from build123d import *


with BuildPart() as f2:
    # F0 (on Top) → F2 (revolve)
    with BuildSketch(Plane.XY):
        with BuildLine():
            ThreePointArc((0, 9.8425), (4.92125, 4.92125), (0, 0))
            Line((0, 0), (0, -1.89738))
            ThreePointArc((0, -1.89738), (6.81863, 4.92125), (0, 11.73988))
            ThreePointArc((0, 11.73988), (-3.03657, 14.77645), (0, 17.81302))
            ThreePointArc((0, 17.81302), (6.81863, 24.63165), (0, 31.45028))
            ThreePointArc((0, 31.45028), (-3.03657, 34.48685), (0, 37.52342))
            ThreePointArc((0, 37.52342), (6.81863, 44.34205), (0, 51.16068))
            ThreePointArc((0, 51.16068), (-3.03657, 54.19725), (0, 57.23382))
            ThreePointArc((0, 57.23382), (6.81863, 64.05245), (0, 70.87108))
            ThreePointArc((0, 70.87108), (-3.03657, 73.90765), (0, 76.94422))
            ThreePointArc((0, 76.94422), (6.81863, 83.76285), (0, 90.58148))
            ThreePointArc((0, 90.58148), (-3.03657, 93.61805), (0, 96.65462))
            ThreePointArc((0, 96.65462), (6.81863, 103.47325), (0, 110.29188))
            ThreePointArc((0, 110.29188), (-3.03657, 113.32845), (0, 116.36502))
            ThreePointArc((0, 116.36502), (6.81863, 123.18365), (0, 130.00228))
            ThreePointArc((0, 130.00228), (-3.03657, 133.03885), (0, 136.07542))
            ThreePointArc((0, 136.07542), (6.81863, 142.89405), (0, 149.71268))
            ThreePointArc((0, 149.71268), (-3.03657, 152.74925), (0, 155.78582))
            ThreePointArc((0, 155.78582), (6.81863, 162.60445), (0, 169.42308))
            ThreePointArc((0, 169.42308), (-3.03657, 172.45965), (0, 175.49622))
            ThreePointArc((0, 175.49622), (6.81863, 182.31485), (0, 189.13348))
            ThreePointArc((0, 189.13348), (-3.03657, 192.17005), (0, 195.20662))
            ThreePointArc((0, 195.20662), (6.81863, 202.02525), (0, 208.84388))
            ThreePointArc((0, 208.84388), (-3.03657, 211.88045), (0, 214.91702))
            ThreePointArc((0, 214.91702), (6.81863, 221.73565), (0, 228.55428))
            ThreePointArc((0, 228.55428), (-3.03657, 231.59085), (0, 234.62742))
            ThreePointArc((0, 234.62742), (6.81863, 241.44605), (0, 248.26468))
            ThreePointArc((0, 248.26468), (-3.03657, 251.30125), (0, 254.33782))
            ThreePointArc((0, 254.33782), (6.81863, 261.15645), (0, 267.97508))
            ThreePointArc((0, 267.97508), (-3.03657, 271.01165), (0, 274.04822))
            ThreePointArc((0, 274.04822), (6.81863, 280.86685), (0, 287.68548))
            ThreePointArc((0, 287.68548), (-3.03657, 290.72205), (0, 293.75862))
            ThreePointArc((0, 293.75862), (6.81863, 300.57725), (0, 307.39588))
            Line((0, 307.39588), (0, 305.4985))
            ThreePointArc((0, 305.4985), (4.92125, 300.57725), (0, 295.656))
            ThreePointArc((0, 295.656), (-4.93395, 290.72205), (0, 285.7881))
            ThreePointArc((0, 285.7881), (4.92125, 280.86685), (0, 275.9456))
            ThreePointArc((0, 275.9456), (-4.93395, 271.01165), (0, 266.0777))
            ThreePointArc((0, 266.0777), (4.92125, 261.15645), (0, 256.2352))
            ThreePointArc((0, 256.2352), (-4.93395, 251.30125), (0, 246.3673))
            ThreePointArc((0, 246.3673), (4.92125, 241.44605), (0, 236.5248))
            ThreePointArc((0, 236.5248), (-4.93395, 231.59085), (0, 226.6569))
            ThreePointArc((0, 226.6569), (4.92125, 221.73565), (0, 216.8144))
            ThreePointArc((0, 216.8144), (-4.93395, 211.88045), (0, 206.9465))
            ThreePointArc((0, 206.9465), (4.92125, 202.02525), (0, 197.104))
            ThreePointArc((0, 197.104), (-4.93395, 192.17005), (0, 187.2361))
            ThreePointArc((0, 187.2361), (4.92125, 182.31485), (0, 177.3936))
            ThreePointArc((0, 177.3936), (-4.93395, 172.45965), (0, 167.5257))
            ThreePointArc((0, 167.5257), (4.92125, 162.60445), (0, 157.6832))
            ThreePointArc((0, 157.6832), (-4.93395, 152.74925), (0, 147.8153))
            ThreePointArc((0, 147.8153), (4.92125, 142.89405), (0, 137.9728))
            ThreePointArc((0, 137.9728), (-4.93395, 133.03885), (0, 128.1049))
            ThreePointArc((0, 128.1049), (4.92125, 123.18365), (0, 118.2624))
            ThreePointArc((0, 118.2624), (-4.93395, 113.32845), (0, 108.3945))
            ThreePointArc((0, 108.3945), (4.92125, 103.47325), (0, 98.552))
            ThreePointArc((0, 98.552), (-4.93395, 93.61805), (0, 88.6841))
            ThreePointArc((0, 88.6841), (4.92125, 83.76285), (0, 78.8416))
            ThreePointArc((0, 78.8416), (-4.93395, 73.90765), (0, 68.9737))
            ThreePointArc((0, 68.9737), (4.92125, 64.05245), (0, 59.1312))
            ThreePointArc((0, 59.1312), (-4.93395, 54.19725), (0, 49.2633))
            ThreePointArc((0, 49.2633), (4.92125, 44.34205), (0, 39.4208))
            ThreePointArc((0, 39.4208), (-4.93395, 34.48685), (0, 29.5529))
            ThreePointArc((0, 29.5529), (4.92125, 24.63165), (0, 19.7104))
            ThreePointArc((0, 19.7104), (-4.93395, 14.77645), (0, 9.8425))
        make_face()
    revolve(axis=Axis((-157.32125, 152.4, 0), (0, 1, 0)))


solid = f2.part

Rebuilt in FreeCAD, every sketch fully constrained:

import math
import FreeCAD as App
import Part
import Sketcher
from FreeCAD import Vector

doc = App.newDocument("Part")
body = doc.addObject("PartDesign::Body", "Body")

# Sketch on XY plane
sketch1 = body.newObject("Sketcher::SketchObject", "Sketch")
sketch1.AttachmentSupport = (doc.getObject("XY_Plane"), [""])
sketch1.MapMode = "FlatFace"
sketch1.addGeometry([
    Part.ArcOfCircle(Part.Circle(Vector(0, 4.92125, 0), Vector(0, 0, 1), 4.92125), math.radians(-90), math.radians(90)),  # 0
    Part.LineSegment(Vector(0, 0, 0), Vector(0, -1.89738, 0)),  # 1
    Part.ArcOfCircle(Part.Circle(Vector(0, 4.92125, 0), Vector(0, 0, 1), 6.81863), math.radians(-90), math.radians(90)),  # 2
    Part.ArcOfCircle(Part.Circle(Vector(0, 14.77645, 0), Vector(0, 0, 1), 3.03657), math.radians(90), math.radians(270)),  # 3
    Part.ArcOfCircle(Part.Circle(Vector(0, 24.63165, 0), Vector(0, 0, 1), 6.81863), math.radians(-90), math.radians(90)),  # 4
    Part.ArcOfCircle(Part.Circle(Vector(0, 34.48685, 0), Vector(0, 0, 1), 3.03657), math.radians(90), math.radians(270)),  # 5
    Part.ArcOfCircle(Part.Circle(Vector(0, 44.34205, 0), Vector(0, 0, 1), 6.81863), math.radians(-90), math.radians(90)),  # 6
    Part.ArcOfCircle(Part.Circle(Vector(0, 54.19725, 0), Vector(0, 0, 1), 3.03657), math.radians(90), math.radians(270)),  # 7
    Part.ArcOfCircle(Part.Circle(Vector(0, 64.05245, 0), Vector(0, 0, 1), 6.81863), math.radians(-90), math.radians(90)),  # 8
    Part.ArcOfCircle(Part.Circle(Vector(0, 73.90765, 0), Vector(0, 0, 1), 3.03657), math.radians(90), math.radians(270)),  # 9
    Part.ArcOfCircle(Part.Circle(Vector(0, 83.76285, 0), Vector(0, 0, 1), 6.81863), math.radians(-90), math.radians(90)),  # 10
    Part.ArcOfCircle(Part.Circle(Vector(0, 93.61805, 0), Vector(0, 0, 1), 3.03657), math.radians(90), math.radians(270)),  # 11
    Part.ArcOfCircle(Part.Circle(Vector(0, 103.47325, 0), Vector(0, 0, 1), 6.81863), math.radians(-90), math.radians(90)),  # 12
    Part.ArcOfCircle(Part.Circle(Vector(0, 113.32845, 0), Vector(0, 0, 1), 3.03657), math.radians(90), math.radians(270)),  # 13
    Part.ArcOfCircle(Part.Circle(Vector(0, 123.18365, 0), Vector(0, 0, 1), 6.81863), math.radians(-90), math.radians(90)),  # 14
    Part.ArcOfCircle(Part.Circle(Vector(0, 133.03885, 0), Vector(0, 0, 1), 3.03657), math.radians(90), math.radians(270)),  # 15
    Part.ArcOfCircle(Part.Circle(Vector(0, 142.89405, 0), Vector(0, 0, 1), 6.81863), math.radians(-90), math.radians(90)),  # 16
    Part.ArcOfCircle(Part.Circle(Vector(0, 152.74925, 0), Vector(0, 0, 1), 3.03657), math.radians(90), math.radians(270)),  # 17
    Part.ArcOfCircle(Part.Circle(Vector(0, 162.60445, 0), Vector(0, 0, 1), 6.81863), math.radians(-90), math.radians(90)),  # 18
    Part.ArcOfCircle(Part.Circle(Vector(0, 172.45965, 0), Vector(0, 0, 1), 3.03657), math.radians(90), math.radians(270)),  # 19
    Part.ArcOfCircle(Part.Circle(Vector(0, 182.31485, 0), Vector(0, 0, 1), 6.81863), math.radians(-90), math.radians(90)),  # 20
    Part.ArcOfCircle(Part.Circle(Vector(0, 192.17005, 0), Vector(0, 0, 1), 3.03657), math.radians(90), math.radians(270)),  # 21
    Part.ArcOfCircle(Part.Circle(Vector(0, 202.02525, 0), Vector(0, 0, 1), 6.81863), math.radians(-90), math.radians(90)),  # 22
    Part.ArcOfCircle(Part.Circle(Vector(0, 211.88045, 0), Vector(0, 0, 1), 3.03657), math.radians(90), math.radians(270)),  # 23
    Part.ArcOfCircle(Part.Circle(Vector(0, 221.73565, 0), Vector(0, 0, 1), 6.81863), math.radians(-90), math.radians(90)),  # 24
    Part.ArcOfCircle(Part.Circle(Vector(0, 231.59085, 0), Vector(0, 0, 1), 3.03657), math.radians(90), math.radians(270)),  # 25
    Part.ArcOfCircle(Part.Circle(Vector(0, 241.44605, 0), Vector(0, 0, 1), 6.81863), math.radians(-90), math.radians(90)),  # 26
    Part.ArcOfCircle(Part.Circle(Vector(0, 251.30125, 0), Vector(0, 0, 1), 3.03657), math.radians(90), math.radians(270)),  # 27
    Part.ArcOfCircle(Part.Circle(Vector(0, 261.15645, 0), Vector(0, 0, 1), 6.81863), math.radians(-90), math.radians(90)),  # 28
    Part.ArcOfCircle(Part.Circle(Vector(0, 271.01165, 0), Vector(0, 0, 1), 3.03657), math.radians(90), math.radians(270)),  # 29
    Part.ArcOfCircle(Part.Circle(Vector(0, 280.86685, 0), Vector(0, 0, 1), 6.81863), math.radians(-90), math.radians(90)),  # 30
    Part.ArcOfCircle(Part.Circle(Vector(0, 290.72205, 0), Vector(0, 0, 1), 3.03657), math.radians(90), math.radians(270)),  # 31
    Part.ArcOfCircle(Part.Circle(Vector(0, 300.57725, 0), Vector(0, 0, 1), 6.81863), math.radians(-90), math.radians(90)),  # 32
    Part.LineSegment(Vector(0, 307.39588, 0), Vector(0, 305.4985, 0)),  # 33
    Part.ArcOfCircle(Part.Circle(Vector(0, 300.57725, 0), Vector(0, 0, 1), 4.92125), math.radians(-90), math.radians(90)),  # 34
    Part.ArcOfCircle(Part.Circle(Vector(0, 290.72205, 0), Vector(0, 0, 1), 4.93395), math.radians(90), math.radians(270)),  # 35
    Part.ArcOfCircle(Part.Circle(Vector(0, 280.86685, 0), Vector(0, 0, 1), 4.92125), math.radians(-90), math.radians(90)),  # 36
    Part.ArcOfCircle(Part.Circle(Vector(0, 271.01165, 0), Vector(0, 0, 1), 4.93395), math.radians(90), math.radians(270)),  # 37
    Part.ArcOfCircle(Part.Circle(Vector(0, 261.15645, 0), Vector(0, 0, 1), 4.92125), math.radians(-90), math.radians(90)),  # 38
    Part.ArcOfCircle(Part.Circle(Vector(0, 251.30125, 0), Vector(0, 0, 1), 4.93395), math.radians(90), math.radians(270)),  # 39
    Part.ArcOfCircle(Part.Circle(Vector(0, 241.44605, 0), Vector(0, 0, 1), 4.92125), math.radians(-90), math.radians(90)),  # 40
    Part.ArcOfCircle(Part.Circle(Vector(0, 231.59085, 0), Vector(0, 0, 1), 4.93395), math.radians(90), math.radians(270)),  # 41
    Part.ArcOfCircle(Part.Circle(Vector(0, 221.73565, 0), Vector(0, 0, 1), 4.92125), math.radians(-90), math.radians(90)),  # 42
    Part.ArcOfCircle(Part.Circle(Vector(0, 211.88045, 0), Vector(0, 0, 1), 4.93395), math.radians(90), math.radians(270)),  # 43
    Part.ArcOfCircle(Part.Circle(Vector(0, 202.02525, 0), Vector(0, 0, 1), 4.92125), math.radians(-90), math.radians(90)),  # 44
    Part.ArcOfCircle(Part.Circle(Vector(0, 192.17005, 0), Vector(0, 0, 1), 4.93395), math.radians(90), math.radians(270)),  # 45
    Part.ArcOfCircle(Part.Circle(Vector(0, 182.31485, 0), Vector(0, 0, 1), 4.92125), math.radians(-90), math.radians(90)),  # 46
    Part.ArcOfCircle(Part.Circle(Vector(0, 172.45965, 0), Vector(0, 0, 1), 4.93395), math.radians(90), math.radians(270)),  # 47
    Part.ArcOfCircle(Part.Circle(Vector(0, 162.60445, 0), Vector(0, 0, 1), 4.92125), math.radians(-90), math.radians(90)),  # 48
    Part.ArcOfCircle(Part.Circle(Vector(0, 152.74925, 0), Vector(0, 0, 1), 4.93395), math.radians(90), math.radians(270)),  # 49
    Part.ArcOfCircle(Part.Circle(Vector(0, 142.89405, 0), Vector(0, 0, 1), 4.92125), math.radians(-90), math.radians(90)),  # 50
    Part.ArcOfCircle(Part.Circle(Vector(0, 133.03885, 0), Vector(0, 0, 1), 4.93395), math.radians(90), math.radians(270)),  # 51
    Part.ArcOfCircle(Part.Circle(Vector(0, 123.18365, 0), Vector(0, 0, 1), 4.92125), math.radians(-90), math.radians(90)),  # 52
    Part.ArcOfCircle(Part.Circle(Vector(0, 113.32845, 0), Vector(0, 0, 1), 4.93395), math.radians(90), math.radians(270)),  # 53
    Part.ArcOfCircle(Part.Circle(Vector(0, 103.47325, 0), Vector(0, 0, 1), 4.92125), math.radians(-90), math.radians(90)),  # 54
    Part.ArcOfCircle(Part.Circle(Vector(0, 93.61805, 0), Vector(0, 0, 1), 4.93395), math.radians(90), math.radians(270)),  # 55
    Part.ArcOfCircle(Part.Circle(Vector(0, 83.76285, 0), Vector(0, 0, 1), 4.92125), math.radians(-90), math.radians(90)),  # 56
    Part.ArcOfCircle(Part.Circle(Vector(0, 73.90765, 0), Vector(0, 0, 1), 4.93395), math.radians(90), math.radians(270)),  # 57
    Part.ArcOfCircle(Part.Circle(Vector(0, 64.05245, 0), Vector(0, 0, 1), 4.92125), math.radians(-90), math.radians(90)),  # 58
    Part.ArcOfCircle(Part.Circle(Vector(0, 54.19725, 0), Vector(0, 0, 1), 4.93395), math.radians(90), math.radians(270)),  # 59
    Part.ArcOfCircle(Part.Circle(Vector(0, 44.34205, 0), Vector(0, 0, 1), 4.92125), math.radians(-90), math.radians(90)),  # 60
    Part.ArcOfCircle(Part.Circle(Vector(0, 34.48685, 0), Vector(0, 0, 1), 4.93395), math.radians(90), math.radians(270)),  # 61
    Part.ArcOfCircle(Part.Circle(Vector(0, 24.63165, 0), Vector(0, 0, 1), 4.92125), math.radians(-90), math.radians(90)),  # 62
    Part.ArcOfCircle(Part.Circle(Vector(0, 14.77645, 0), Vector(0, 0, 1), 4.93395), math.radians(90), math.radians(270)),  # 63
], False)
sketch1.addGeometry(Part.LineSegment(Vector(-157.32125, -1.89738, 0), Vector(-157.32125, 307.39588, 0)), True)  # axis
sketch1.addConstraint([
    Sketcher.Constraint("Coincident", 0, 1, 1, 1),
    Sketcher.Constraint("Coincident", 1, 2, 2, 1),
    Sketcher.Constraint("Tangent", 2, 2, 3, 2),
    Sketcher.Constraint("Tangent", 3, 1, 4, 1),
    Sketcher.Constraint("Tangent", 4, 2, 5, 2),
    Sketcher.Constraint("Tangent", 5, 1, 6, 1),
    Sketcher.Constraint("Tangent", 6, 2, 7, 2),
    Sketcher.Constraint("Tangent", 7, 1, 8, 1),
    Sketcher.Constraint("Tangent", 8, 2, 9, 2),
    Sketcher.Constraint("Tangent", 9, 1, 10, 1),
    Sketcher.Constraint("Tangent", 10, 2, 11, 2),
    Sketcher.Constraint("Tangent", 11, 1, 12, 1),
    Sketcher.Constraint("Tangent", 12, 2, 13, 2),
    Sketcher.Constraint("Tangent", 13, 1, 14, 1),
    Sketcher.Constraint("Tangent", 14, 2, 15, 2),
    Sketcher.Constraint("Tangent", 15, 1, 16, 1),
    Sketcher.Constraint("Tangent", 16, 2, 17, 2),
    Sketcher.Constraint("Tangent", 17, 1, 18, 1),
    Sketcher.Constraint("Tangent", 18, 2, 19, 2),
    Sketcher.Constraint("Tangent", 19, 1, 20, 1),
    Sketcher.Constraint("Tangent", 20, 2, 21, 2),
    Sketcher.Constraint("Tangent", 21, 1, 22, 1),
    Sketcher.Constraint("Tangent", 22, 2, 23, 2),
    Sketcher.Constraint("Tangent", 23, 1, 24, 1),
    Sketcher.Constraint("Tangent", 24, 2, 25, 2),
    Sketcher.Constraint("Tangent", 25, 1, 26, 1),
    Sketcher.Constraint("Tangent", 26, 2, 27, 2),
    Sketcher.Constraint("Tangent", 27, 1, 28, 1),
    Sketcher.Constraint("Tangent", 28, 2, 29, 2),
    Sketcher.Constraint("Tangent", 29, 1, 30, 1),
    Sketcher.Constraint("Tangent", 30, 2, 31, 2),
    Sketcher.Constraint("Tangent", 31, 1, 32, 1),
    Sketcher.Constraint("Coincident", 32, 2, 33, 1),
    Sketcher.Constraint("Coincident", 33, 2, 34, 2),
    Sketcher.Constraint("Tangent", 34, 1, 35, 1),
    Sketcher.Constraint("Tangent", 35, 2, 36, 2),
    Sketcher.Constraint("Tangent", 36, 1, 37, 1),
    Sketcher.Constraint("Tangent", 37, 2, 38, 2),
    Sketcher.Constraint("Tangent", 38, 1, 39, 1),
    Sketcher.Constraint("Tangent", 39, 2, 40, 2),
    Sketcher.Constraint("Tangent", 40, 1, 41, 1),
    Sketcher.Constraint("Tangent", 41, 2, 42, 2),
    Sketcher.Constraint("Tangent", 42, 1, 43, 1),
    Sketcher.Constraint("Tangent", 43, 2, 44, 2),
    Sketcher.Constraint("Tangent", 44, 1, 45, 1),
    Sketcher.Constraint("Tangent", 45, 2, 46, 2),
    Sketcher.Constraint("Tangent", 46, 1, 47, 1),
    Sketcher.Constraint("Tangent", 47, 2, 48, 2),
    Sketcher.Constraint("Tangent", 48, 1, 49, 1),
    Sketcher.Constraint("Tangent", 49, 2, 50, 2),
    Sketcher.Constraint("Tangent", 50, 1, 51, 1),
    Sketcher.Constraint("Tangent", 51, 2, 52, 2),
    Sketcher.Constraint("Tangent", 52, 1, 53, 1),
    Sketcher.Constraint("Tangent", 53, 2, 54, 2),
    Sketcher.Constraint("Tangent", 54, 1, 55, 1),
    Sketcher.Constraint("Tangent", 55, 2, 56, 2),
    Sketcher.Constraint("Tangent", 56, 1, 57, 1),
    Sketcher.Constraint("Tangent", 57, 2, 58, 2),
    Sketcher.Constraint("Tangent", 58, 1, 59, 1),
    Sketcher.Constraint("Tangent", 59, 2, 60, 2),
    Sketcher.Constraint("Tangent", 60, 1, 61, 1),
    Sketcher.Constraint("Tangent", 61, 2, 62, 2),
    Sketcher.Constraint("Tangent", 62, 1, 63, 1),
    Sketcher.Constraint("Tangent", 63, 2, 0, 2),
    Sketcher.Constraint("Vertical", 1),
    Sketcher.Constraint("Vertical", 33),
    Sketcher.Constraint("Vertical", 64),
    Sketcher.Constraint("Coincident", 0, 1, -1, 1),
    Sketcher.Constraint("Coincident", 2, 3, 0, 3),
    Sketcher.Constraint("Coincident", 34, 3, 32, 3),
    Sketcher.Constraint("Coincident", 35, 3, 31, 3),
    Sketcher.Constraint("Coincident", 36, 3, 30, 3),
    Sketcher.Constraint("Coincident", 37, 3, 29, 3),
    Sketcher.Constraint("Coincident", 38, 3, 28, 3),
    Sketcher.Constraint("Coincident", 39, 3, 27, 3),
    Sketcher.Constraint("Coincident", 40, 3, 26, 3),
    Sketcher.Constraint("Coincident", 41, 3, 25, 3),
    Sketcher.Constraint("Coincident", 42, 3, 24, 3),
    Sketcher.Constraint("Coincident", 43, 3, 23, 3),
    Sketcher.Constraint("Coincident", 44, 3, 22, 3),
    Sketcher.Constraint("Coincident", 45, 3, 21, 3),
    Sketcher.Constraint("Coincident", 46, 3, 20, 3),
    Sketcher.Constraint("Coincident", 47, 3, 19, 3),
    Sketcher.Constraint("Coincident", 48, 3, 18, 3),
    Sketcher.Constraint("Coincident", 49, 3, 17, 3),
    Sketcher.Constraint("Coincident", 50, 3, 16, 3),
    Sketcher.Constraint("Coincident", 51, 3, 15, 3),
    Sketcher.Constraint("Coincident", 52, 3, 14, 3),
    Sketcher.Constraint("Coincident", 53, 3, 13, 3),
    Sketcher.Constraint("Coincident", 54, 3, 12, 3),
    Sketcher.Constraint("Coincident", 55, 3, 11, 3),
    Sketcher.Constraint("Coincident", 56, 3, 10, 3),
    Sketcher.Constraint("Coincident", 57, 3, 9, 3),
    Sketcher.Constraint("Coincident", 58, 3, 8, 3),
    Sketcher.Constraint("Coincident", 59, 3, 7, 3),
    Sketcher.Constraint("Coincident", 60, 3, 6, 3),
    Sketcher.Constraint("Coincident", 61, 3, 5, 3),
    Sketcher.Constraint("Coincident", 62, 3, 4, 3),
    Sketcher.Constraint("Coincident", 63, 3, 3, 3),
    Sketcher.Constraint("Equal", 2, 4),
    Sketcher.Constraint("Equal", 3, 5),
    Sketcher.Constraint("Equal", 4, 6),
    Sketcher.Constraint("Equal", 5, 7),
    Sketcher.Constraint("Equal", 6, 8),
    Sketcher.Constraint("Equal", 7, 9),
    Sketcher.Constraint("Equal", 8, 10),
    Sketcher.Constraint("Equal", 9, 11),
    Sketcher.Constraint("Equal", 10, 12),
    Sketcher.Constraint("Equal", 11, 13),
    Sketcher.Constraint("Equal", 12, 14),
    Sketcher.Constraint("Equal", 13, 15),
    Sketcher.Constraint("Equal", 14, 16),
    Sketcher.Constraint("Equal", 15, 17),
    Sketcher.Constraint("Equal", 16, 18),
    Sketcher.Constraint("Equal", 17, 19),
    Sketcher.Constraint("Equal", 18, 20),
    Sketcher.Constraint("Equal", 19, 21),
    Sketcher.Constraint("Equal", 20, 22),
    Sketcher.Constraint("Equal", 21, 23),
    Sketcher.Constraint("Equal", 22, 24),
    Sketcher.Constraint("Equal", 23, 25),
    Sketcher.Constraint("Equal", 24, 26),
    Sketcher.Constraint("Equal", 25, 27),
    Sketcher.Constraint("Equal", 26, 28),
    Sketcher.Constraint("Equal", 27, 29),
    Sketcher.Constraint("Equal", 28, 30),
    Sketcher.Constraint("Equal", 29, 31),
    Sketcher.Constraint("Equal", 30, 32),
    Sketcher.Constraint("PointOnObject", 0, 3, -2),
    Sketcher.Constraint("PointOnObject", 3, 3, -2),
    Sketcher.Constraint("PointOnObject", 4, 3, -2),
    Sketcher.Constraint("PointOnObject", 5, 3, -2),
    Sketcher.Constraint("PointOnObject", 6, 3, -2),
    Sketcher.Constraint("PointOnObject", 7, 3, -2),
    Sketcher.Constraint("PointOnObject", 8, 3, -2),
    Sketcher.Constraint("PointOnObject", 9, 3, -2),
    Sketcher.Constraint("PointOnObject", 10, 3, -2),
    Sketcher.Constraint("PointOnObject", 11, 3, -2),
    Sketcher.Constraint("PointOnObject", 12, 3, -2),
    Sketcher.Constraint("PointOnObject", 13, 3, -2),
    Sketcher.Constraint("PointOnObject", 14, 3, -2),
    Sketcher.Constraint("PointOnObject", 15, 3, -2),
    Sketcher.Constraint("PointOnObject", 16, 3, -2),
    Sketcher.Constraint("PointOnObject", 17, 3, -2),
    Sketcher.Constraint("PointOnObject", 18, 3, -2),
    Sketcher.Constraint("PointOnObject", 19, 3, -2),
    Sketcher.Constraint("PointOnObject", 20, 3, -2),
    Sketcher.Constraint("PointOnObject", 21, 3, -2),
    Sketcher.Constraint("PointOnObject", 22, 3, -2),
    Sketcher.Constraint("PointOnObject", 23, 3, -2),
    Sketcher.Constraint("PointOnObject", 24, 3, -2),
    Sketcher.Constraint("PointOnObject", 25, 3, -2),
    Sketcher.Constraint("PointOnObject", 26, 3, -2),
    Sketcher.Constraint("PointOnObject", 27, 3, -2),
    Sketcher.Constraint("PointOnObject", 28, 3, -2),
    Sketcher.Constraint("PointOnObject", 29, 3, -2),
    Sketcher.Constraint("PointOnObject", 30, 3, -2),
    Sketcher.Constraint("PointOnObject", 31, 3, -2),
    Sketcher.Constraint("PointOnObject", 32, 3, -2),
    Sketcher.Constraint("PointOnObject", 32, 2, -2),
    Sketcher.Constraint("Horizontal", 1, 2, 64, 1),
    Sketcher.Constraint("Horizontal", 32, 2, 64, 2),
    Sketcher.Constraint("Radius", 0, 4.92125),
    Sketcher.Constraint("Radius", 2, 6.81863),
    Sketcher.Constraint("Radius", 3, 3.03657),
    Sketcher.Constraint("DistanceX", 64, 1, -1, 1, 157.32125),
])
revolution = body.newObject("PartDesign::Revolution", "Revolution")
revolution.Profile = sketch1
revolution.ReferenceAxis = (sketch1, ["Axis0"])
revolution.Angle = 360

doc.recompute()
